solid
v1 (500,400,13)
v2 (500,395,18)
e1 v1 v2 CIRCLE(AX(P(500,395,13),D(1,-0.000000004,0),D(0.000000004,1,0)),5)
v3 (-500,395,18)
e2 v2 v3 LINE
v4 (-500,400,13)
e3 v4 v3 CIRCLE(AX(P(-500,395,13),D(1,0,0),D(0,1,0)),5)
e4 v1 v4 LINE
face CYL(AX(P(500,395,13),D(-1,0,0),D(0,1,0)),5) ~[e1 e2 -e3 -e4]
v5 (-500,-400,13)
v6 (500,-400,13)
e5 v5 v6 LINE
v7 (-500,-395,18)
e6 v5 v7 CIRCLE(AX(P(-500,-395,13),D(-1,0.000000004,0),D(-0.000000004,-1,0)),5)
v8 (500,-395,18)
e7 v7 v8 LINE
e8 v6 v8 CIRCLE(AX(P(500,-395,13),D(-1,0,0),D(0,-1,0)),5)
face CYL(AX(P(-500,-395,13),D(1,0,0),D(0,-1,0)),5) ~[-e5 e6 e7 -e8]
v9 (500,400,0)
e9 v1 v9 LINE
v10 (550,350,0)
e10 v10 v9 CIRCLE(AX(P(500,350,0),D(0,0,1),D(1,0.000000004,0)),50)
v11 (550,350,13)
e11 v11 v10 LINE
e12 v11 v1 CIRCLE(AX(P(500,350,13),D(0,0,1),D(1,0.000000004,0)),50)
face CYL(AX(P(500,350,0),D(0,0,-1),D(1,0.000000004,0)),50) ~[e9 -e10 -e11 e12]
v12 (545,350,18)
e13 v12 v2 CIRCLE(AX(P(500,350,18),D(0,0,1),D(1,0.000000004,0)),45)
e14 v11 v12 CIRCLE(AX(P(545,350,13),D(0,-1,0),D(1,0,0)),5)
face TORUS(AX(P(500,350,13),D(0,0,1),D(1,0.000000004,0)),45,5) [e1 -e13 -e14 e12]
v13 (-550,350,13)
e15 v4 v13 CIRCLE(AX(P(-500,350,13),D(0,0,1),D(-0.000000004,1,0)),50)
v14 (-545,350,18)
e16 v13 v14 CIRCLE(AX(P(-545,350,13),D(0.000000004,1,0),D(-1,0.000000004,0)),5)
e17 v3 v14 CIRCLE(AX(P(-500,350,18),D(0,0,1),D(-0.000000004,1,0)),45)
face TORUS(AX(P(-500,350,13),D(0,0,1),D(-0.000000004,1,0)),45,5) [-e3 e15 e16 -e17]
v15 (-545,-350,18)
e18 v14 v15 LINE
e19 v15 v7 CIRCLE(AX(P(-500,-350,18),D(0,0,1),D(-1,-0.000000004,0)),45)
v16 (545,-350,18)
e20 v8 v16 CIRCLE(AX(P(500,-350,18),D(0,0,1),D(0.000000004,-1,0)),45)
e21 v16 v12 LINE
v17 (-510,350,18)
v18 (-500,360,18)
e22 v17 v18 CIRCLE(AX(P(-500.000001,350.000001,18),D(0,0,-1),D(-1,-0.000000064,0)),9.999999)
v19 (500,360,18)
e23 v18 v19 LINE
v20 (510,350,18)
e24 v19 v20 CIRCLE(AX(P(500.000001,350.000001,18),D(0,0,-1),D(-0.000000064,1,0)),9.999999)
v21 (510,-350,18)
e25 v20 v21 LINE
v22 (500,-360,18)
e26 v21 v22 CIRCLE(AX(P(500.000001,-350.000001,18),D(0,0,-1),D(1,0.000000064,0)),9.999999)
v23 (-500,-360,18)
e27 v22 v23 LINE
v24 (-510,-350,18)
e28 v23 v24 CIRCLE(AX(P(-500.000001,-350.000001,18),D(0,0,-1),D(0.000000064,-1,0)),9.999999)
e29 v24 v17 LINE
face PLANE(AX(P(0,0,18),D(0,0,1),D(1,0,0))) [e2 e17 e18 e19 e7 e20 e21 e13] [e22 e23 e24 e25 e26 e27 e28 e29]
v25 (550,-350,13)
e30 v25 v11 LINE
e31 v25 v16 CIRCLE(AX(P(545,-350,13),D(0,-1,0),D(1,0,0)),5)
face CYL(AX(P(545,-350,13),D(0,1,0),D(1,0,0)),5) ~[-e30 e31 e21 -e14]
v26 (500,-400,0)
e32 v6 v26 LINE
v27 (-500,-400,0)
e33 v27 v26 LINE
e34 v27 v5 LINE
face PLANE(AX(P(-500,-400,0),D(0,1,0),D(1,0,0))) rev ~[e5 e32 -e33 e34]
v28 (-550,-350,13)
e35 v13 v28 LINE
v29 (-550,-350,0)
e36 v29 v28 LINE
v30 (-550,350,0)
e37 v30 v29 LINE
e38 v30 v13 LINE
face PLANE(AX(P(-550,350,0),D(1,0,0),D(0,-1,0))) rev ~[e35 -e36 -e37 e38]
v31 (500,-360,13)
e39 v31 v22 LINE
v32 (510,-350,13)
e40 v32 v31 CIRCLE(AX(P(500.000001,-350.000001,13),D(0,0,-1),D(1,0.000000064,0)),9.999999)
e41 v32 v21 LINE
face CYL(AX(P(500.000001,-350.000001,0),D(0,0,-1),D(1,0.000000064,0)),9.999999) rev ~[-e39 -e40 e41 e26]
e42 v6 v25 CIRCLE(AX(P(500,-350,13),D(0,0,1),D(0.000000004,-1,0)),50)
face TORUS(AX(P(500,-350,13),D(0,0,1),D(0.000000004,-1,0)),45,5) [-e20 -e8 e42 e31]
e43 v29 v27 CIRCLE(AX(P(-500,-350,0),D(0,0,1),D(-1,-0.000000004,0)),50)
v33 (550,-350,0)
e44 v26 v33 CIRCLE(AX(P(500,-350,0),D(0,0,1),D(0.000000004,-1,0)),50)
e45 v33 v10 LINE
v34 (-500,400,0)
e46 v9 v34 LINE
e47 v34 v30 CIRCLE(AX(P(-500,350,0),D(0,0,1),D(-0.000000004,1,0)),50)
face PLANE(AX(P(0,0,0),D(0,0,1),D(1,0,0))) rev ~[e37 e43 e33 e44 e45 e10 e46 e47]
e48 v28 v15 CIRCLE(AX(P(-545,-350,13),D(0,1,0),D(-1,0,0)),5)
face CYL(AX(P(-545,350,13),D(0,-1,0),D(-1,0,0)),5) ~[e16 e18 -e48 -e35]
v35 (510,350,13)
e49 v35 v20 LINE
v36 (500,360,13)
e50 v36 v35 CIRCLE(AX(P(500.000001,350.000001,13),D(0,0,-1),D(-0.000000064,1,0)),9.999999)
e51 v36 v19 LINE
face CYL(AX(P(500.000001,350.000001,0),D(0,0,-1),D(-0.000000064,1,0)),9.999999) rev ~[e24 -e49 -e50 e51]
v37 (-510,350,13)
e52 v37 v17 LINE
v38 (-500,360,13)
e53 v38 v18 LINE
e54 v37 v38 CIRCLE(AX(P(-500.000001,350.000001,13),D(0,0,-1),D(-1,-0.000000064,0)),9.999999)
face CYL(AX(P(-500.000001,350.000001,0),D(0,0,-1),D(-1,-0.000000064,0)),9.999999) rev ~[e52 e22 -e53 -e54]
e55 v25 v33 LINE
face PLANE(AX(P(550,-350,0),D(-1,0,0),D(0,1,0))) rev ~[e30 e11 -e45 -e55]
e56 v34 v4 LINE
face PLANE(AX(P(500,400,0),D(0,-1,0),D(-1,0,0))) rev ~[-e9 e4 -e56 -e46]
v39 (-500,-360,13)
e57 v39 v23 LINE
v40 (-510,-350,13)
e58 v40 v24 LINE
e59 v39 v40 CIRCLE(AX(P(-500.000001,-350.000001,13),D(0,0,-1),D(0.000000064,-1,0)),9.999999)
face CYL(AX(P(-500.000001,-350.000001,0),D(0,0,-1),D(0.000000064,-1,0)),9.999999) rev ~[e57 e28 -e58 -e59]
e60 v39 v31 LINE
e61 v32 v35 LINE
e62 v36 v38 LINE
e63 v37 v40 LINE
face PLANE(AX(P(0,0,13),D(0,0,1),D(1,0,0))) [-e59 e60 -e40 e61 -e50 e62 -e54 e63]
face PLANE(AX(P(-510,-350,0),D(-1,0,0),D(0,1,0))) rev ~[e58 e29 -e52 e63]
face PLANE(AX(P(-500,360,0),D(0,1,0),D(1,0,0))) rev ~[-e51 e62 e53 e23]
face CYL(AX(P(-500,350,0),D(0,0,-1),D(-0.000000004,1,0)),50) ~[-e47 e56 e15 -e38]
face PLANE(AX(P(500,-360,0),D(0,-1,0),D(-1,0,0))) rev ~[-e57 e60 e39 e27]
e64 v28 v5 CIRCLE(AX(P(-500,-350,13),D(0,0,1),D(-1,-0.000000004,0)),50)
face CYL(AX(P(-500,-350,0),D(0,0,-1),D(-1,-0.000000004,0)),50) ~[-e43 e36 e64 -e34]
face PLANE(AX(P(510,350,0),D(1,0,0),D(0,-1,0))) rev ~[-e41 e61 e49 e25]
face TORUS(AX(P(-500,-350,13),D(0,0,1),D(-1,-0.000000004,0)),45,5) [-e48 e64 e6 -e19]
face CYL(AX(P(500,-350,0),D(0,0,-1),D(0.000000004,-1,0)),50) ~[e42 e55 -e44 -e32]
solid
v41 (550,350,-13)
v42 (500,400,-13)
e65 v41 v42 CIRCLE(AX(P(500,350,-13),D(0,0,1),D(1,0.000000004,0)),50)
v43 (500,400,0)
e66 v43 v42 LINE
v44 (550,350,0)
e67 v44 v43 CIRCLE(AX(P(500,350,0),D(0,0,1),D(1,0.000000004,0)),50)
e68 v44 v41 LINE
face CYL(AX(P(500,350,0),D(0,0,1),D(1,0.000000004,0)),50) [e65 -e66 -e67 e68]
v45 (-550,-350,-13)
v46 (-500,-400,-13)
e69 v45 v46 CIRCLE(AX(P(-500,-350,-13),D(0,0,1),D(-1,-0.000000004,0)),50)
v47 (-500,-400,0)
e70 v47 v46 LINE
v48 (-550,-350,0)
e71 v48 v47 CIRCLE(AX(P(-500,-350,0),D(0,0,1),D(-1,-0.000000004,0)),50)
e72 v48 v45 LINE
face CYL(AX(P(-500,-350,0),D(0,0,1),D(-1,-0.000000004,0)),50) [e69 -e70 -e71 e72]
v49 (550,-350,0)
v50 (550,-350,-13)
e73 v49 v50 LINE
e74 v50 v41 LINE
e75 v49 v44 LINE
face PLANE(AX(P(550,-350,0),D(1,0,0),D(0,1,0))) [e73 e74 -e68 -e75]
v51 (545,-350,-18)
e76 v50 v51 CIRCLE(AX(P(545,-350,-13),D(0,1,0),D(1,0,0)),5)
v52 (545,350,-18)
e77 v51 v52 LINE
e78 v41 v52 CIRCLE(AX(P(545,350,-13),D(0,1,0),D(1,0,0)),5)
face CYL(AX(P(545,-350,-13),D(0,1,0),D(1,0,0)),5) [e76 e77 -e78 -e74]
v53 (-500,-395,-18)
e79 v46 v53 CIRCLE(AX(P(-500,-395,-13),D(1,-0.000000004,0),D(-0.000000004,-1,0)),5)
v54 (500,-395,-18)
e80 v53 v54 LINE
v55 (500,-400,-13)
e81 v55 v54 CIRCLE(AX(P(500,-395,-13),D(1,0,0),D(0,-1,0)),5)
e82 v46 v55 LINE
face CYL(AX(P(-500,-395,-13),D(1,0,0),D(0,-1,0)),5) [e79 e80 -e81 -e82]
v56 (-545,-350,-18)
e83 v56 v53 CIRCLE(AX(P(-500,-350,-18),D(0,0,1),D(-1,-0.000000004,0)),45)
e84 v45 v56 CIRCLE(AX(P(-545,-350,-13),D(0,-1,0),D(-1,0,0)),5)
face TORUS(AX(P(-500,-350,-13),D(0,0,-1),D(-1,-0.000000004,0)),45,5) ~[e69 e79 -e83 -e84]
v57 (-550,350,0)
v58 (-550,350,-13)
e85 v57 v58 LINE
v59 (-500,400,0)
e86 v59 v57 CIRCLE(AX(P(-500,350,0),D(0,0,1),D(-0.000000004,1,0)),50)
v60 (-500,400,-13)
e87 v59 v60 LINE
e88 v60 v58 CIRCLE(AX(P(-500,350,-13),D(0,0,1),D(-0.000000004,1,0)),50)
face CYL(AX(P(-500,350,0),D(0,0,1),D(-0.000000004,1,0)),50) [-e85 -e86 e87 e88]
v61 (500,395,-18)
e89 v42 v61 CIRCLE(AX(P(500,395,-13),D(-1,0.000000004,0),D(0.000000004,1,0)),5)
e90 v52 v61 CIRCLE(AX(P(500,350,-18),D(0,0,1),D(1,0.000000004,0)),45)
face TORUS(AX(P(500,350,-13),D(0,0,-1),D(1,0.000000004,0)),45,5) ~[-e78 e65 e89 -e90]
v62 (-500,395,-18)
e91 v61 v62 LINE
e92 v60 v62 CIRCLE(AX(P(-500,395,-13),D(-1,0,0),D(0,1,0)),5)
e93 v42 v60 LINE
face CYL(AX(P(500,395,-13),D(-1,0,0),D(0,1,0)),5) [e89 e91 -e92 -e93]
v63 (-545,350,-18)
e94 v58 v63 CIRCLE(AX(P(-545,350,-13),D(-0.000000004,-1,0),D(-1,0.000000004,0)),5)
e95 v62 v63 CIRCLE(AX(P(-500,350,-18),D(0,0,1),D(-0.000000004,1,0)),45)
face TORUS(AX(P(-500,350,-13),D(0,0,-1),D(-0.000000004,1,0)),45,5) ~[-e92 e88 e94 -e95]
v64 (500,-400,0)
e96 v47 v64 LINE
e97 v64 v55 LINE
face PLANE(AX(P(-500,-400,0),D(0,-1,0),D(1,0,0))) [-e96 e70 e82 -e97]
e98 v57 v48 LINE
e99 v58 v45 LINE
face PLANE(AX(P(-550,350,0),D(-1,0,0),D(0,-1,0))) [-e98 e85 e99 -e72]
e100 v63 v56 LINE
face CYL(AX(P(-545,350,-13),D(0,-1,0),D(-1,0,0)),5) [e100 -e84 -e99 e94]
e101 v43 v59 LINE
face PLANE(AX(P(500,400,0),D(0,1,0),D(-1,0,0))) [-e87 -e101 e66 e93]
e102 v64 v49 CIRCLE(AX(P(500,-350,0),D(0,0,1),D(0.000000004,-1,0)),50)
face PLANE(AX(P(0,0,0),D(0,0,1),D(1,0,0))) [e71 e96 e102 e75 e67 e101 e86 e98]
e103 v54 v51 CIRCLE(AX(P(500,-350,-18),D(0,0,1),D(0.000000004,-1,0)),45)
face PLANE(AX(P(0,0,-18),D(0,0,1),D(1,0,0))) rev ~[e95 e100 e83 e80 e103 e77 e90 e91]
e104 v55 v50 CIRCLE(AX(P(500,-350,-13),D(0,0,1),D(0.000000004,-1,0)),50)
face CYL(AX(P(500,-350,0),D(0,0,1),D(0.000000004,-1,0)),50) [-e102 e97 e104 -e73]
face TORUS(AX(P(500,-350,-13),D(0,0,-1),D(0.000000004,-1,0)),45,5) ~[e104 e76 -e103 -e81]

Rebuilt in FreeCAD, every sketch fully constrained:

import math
import FreeCAD as App
import Part
import Sketcher

V = App.Vector


def edges_at(feature, points):
    """Names of the edges that pass closest to the given points."""
    edges = feature.Shape.Edges
    near = lambda p: min(range(len(edges)), key=lambda i: edges[i].distToShape(Part.Vertex(*p))[0])
    return sorted({f"Edge{near(p) + 1}" for p in points})

doc = App.newDocument("Part")
body = doc.addObject("PartDesign::Body", "Body")

sketch1 = body.newObject("Sketcher::SketchObject", "Sketch")
sketch1.AttachmentSupport = (doc.getObject("XY_Plane"), [""])
sketch1.MapMode = "FlatFace"
sketch1.addGeometry([
    Part.LineSegment(V(500, 400, 0), V(-500, 400, 0)),
    Part.ArcOfCircle(Part.Circle(V(-500, 350, 0), V(0, 0, 1), 50), math.radians(90), math.radians(180)),
    Part.LineSegment(V(-550, 350, 0), V(-550, -350, 0)),
    Part.ArcOfCircle(Part.Circle(V(-500, -350, 0), V(0, 0, 1), 50), math.radians(-180), math.radians(-90)),
    Part.LineSegment(V(-500, -400, 0), V(500, -400, 0)),
    Part.ArcOfCircle(Part.Circle(V(500, -350, 0), V(0, 0, 1), 50), math.radians(-90), math.radians(0)),
    Part.LineSegment(V(550, -350, 0), V(550, 350, 0)),
    Part.ArcOfCircle(Part.Circle(V(500, 350, 0), V(0, 0, 1), 50), math.radians(0), math.radians(90)),
], False)
sketch1.addConstraint([
    Sketcher.Constraint("Tangent", 0, 2, 1, 1),
    Sketcher.Constraint("Tangent", 1, 2, 2, 1),
    Sketcher.Constraint("Tangent", 2, 2, 3, 1),
    Sketcher.Constraint("Tangent", 3, 2, 4, 1),
    Sketcher.Constraint("Tangent", 4, 2, 5, 1),
    Sketcher.Constraint("Tangent", 5, 2, 6, 1),
    Sketcher.Constraint("Tangent", 6, 2, 7, 1),
    Sketcher.Constraint("Tangent", 7, 2, 0, 1),
    Sketcher.Constraint("Horizontal", 0),
    Sketcher.Constraint("Vertical", 2),
    Sketcher.Constraint("Horizontal", 4),
    Sketcher.Constraint("Vertical", 6),
    Sketcher.Constraint("Equal", 1, 3),
    Sketcher.Constraint("Equal", 3, 5),
    Sketcher.Constraint("Equal", 5, 7),
    Sketcher.Constraint("Symmetric", 1, 3, 5, 3, -1, 1),
    Sketcher.Constraint("Radius", 1, 50.0),
    Sketcher.Constraint("DistanceX", 0, 2, 0, 1, 1000.0),
    Sketcher.Constraint("DistanceY", 2, 2, 2, 1, 700.0),
])
pad1 = body.newObject("PartDesign::Pad", "Pad")
pad1.Profile = sketch1
pad1.Length = 13

sketch2 = body.newObject("Sketcher::SketchObject", "Sketch001")
sketch2.AttachmentSupport = (doc.getObject("XY_Plane"), [""])
sketch2.MapMode = "FlatFace"
sketch2.addGeometry([
    Part.LineSegment(V(500, 400, 0), V(-500, 400, 0)),
    Part.ArcOfCircle(Part.Circle(V(-500, 350, 0), V(0, 0, 1), 50), math.radians(90), math.radians(180)),
    Part.LineSegment(V(-550, 350, 0), V(-550, -350, 0)),
    Part.ArcOfCircle(Part.Circle(V(-500, -350, 0), V(0, 0, 1), 50), math.radians(-180), math.radians(-90)),
    Part.LineSegment(V(-500, -400, 0), V(500, -400, 0)),
    Part.ArcOfCircle(Part.Circle(V(500, -350, 0), V(0, 0, 1), 50), math.radians(-90), math.radians(0)),
    Part.LineSegment(V(550, -350, 0), V(550, 350, 0)),
    Part.ArcOfCircle(Part.Circle(V(500, 350, 0), V(0, 0, 1), 50), math.radians(0), math.radians(90)),
    Part.LineSegment(V(-510, -350, 0), V(-510, 350, 0)),
    Part.ArcOfCircle(Part.Circle(V(-500.000001, 350.000001, 0), V(0, 0, 1), 9.999999), math.radians(89.999996), math.radians(180.000004)),
    Part.LineSegment(V(-500, 360, 0), V(500, 360, 0)),
    Part.ArcOfCircle(Part.Circle(V(500.000001, 350.000001, 0), V(0, 0, 1), 9.999999), math.radians(-0.000004), math.radians(90.000004)),
    Part.LineSegment(V(510, 350, 0), V(510, -350, 0)),
    Part.ArcOfCircle(Part.Circle(V(500.000001, -350.000001, 0), V(0, 0, 1), 9.999999), math.radians(-90.000004), math.radians(0.000004)),
    Part.LineSegment(V(500, -360, 0), V(-500, -360, 0)),
    Part.ArcOfCircle(Part.Circle(V(-500.000001, -350.000001, 0), V(0, 0, 1), 9.999999), math.radians(179.999996), math.radians(270.000004)),
], False)
sketch2.addConstraint([
    Sketcher.Constraint("Tangent", 0, 2, 1, 1),
    Sketcher.Constraint("Tangent", 1, 2, 2, 1),
    Sketcher.Constraint("Tangent", 2, 2, 3, 1),
    Sketcher.Constraint("Tangent", 3, 2, 4, 1),
    Sketcher.Constraint("Tangent", 4, 2, 5, 1),
    Sketcher.Constraint("Tangent", 5, 2, 6, 1),
    Sketcher.Constraint("Tangent", 6, 2, 7, 1),
    Sketcher.Constraint("Tangent", 7, 2, 0, 1),
    Sketcher.Constraint("Tangent", 8, 2, 9, 2),
    Sketcher.Constraint("Tangent", 9, 1, 10, 1),
    Sketcher.Constraint("Tangent", 10, 2, 11, 2),
    Sketcher.Constraint("Tangent", 11, 1, 12, 1),
    Sketcher.Constraint("Tangent", 12, 2, 13, 2),
    Sketcher.Constraint("Tangent", 13, 1, 14, 1),
    Sketcher.Constraint("Tangent", 14, 2, 15, 2),
    Sketcher.Constraint("Tangent", 15, 1, 8, 1),
    Sketcher.Constraint("Horizontal", 0),
    Sketcher.Constraint("Vertical", 2),
    Sketcher.Constraint("Horizontal", 4),
    Sketcher.Constraint("Vertical", 6),
    Sketcher.Constraint("Vertical", 8),
    Sketcher.Constraint("Horizontal", 10),
    Sketcher.Constraint("Vertical", 12),
    Sketcher.Constraint("Horizontal", 14),
    Sketcher.Constraint("Coincident", 9, 3, 1, 3),
    Sketcher.Constraint("Coincident", 11, 3, 7, 3),
    Sketcher.Constraint("Coincident", 13, 3, 5, 3),
    Sketcher.Constraint("Equal", 1, 3),
    Sketcher.Constraint("Equal", 3, 5),
    Sketcher.Constraint("Equal", 5, 7),
    Sketcher.Constraint("Equal", 13, 15),
    Sketcher.Constraint("Symmetric", 1, 3, 5, 3, -1, 1),
    Sketcher.Constraint("Radius", 1, 50.0),
    Sketcher.Constraint("Radius", 9, 9.999999),
    Sketcher.Constraint("DistanceX", 0, 2, 0, 1, 1000.0),
    Sketcher.Constraint("DistanceY", 2, 2, 2, 1, 700.0),
])
pad2 = body.newObject("PartDesign::Pad", "Pad001")
pad2.Profile = sketch2
pad2.Length = 18
doc.recompute()

fillet = body.newObject("PartDesign::Fillet", "Fillet")
fillet.Base = (pad2, edges_at(pad2, [(550, 0, 18)]))
fillet.Radius = 5
body2 = doc.addObject("PartDesign::Body", "Body001")

sketch3 = body2.newObject("Sketcher::SketchObject", "Sketch002")
sketch3.AttachmentSupport = (doc.getObject("XY_Plane001"), [""])
sketch3.MapMode = "FlatFace"
sketch3.addGeometry([
    Part.LineSegment(V(500, 400, 0), V(-500, 400, 0)),
    Part.ArcOfCircle(Part.Circle(V(-500, 350, 0), V(0, 0, 1), 50), math.radians(90), math.radians(180)),
    Part.LineSegment(V(-550, 350, 0), V(-550, -350, 0)),
    Part.ArcOfCircle(Part.Circle(V(-500, -350, 0), V(0, 0, 1), 50), math.radians(-180), math.radians(-90)),
    Part.LineSegment(V(-500, -400, 0), V(500, -400, 0)),
    Part.ArcOfCircle(Part.Circle(V(500, -350, 0), V(0, 0, 1), 50), math.radians(-90), math.radians(0)),
    Part.LineSegment(V(550, -350, 0), V(550, 350, 0)),
    Part.ArcOfCircle(Part.Circle(V(500, 350, 0), V(0, 0, 1), 50), math.radians(0), math.radians(90)),
], False)
sketch3.addConstraint([
    Sketcher.Constraint("Tangent", 0, 2, 1, 1),
    Sketcher.Constraint("Tangent", 1, 2, 2, 1),
    Sketcher.Constraint("Tangent", 2, 2, 3, 1),
    Sketcher.Constraint("Tangent", 3, 2, 4, 1),
    Sketcher.Constraint("Tangent", 4, 2, 5, 1),
    Sketcher.Constraint("Tangent", 5, 2, 6, 1),
    Sketcher.Constraint("Tangent", 6, 2, 7, 1),
    Sketcher.Constraint("Tangent", 7, 2, 0, 1),
    Sketcher.Constraint("Horizontal", 0),
    Sketcher.Constraint("Vertical", 2),
    Sketcher.Constraint("Horizontal", 4),
    Sketcher.Constraint("Vertical", 6),
    Sketcher.Constraint("Equal", 1, 3),
    Sketcher.Constraint("Equal", 3, 5),
    Sketcher.Constraint("Equal", 5, 7),
    Sketcher.Constraint("Symmetric", 1, 3, 5, 3, -1, 1),
    Sketcher.Constraint("Radius", 1, 50.0),
    Sketcher.Constraint("DistanceX", 0, 2, 0, 1, 1000.0),
    Sketcher.Constraint("DistanceY", 2, 2, 2, 1, 700.0),
])
pad3 = body2.newObject("PartDesign::Pad", "Pad002")
pad3.Profile = sketch3
pad3.Length = 18
pad3.Reversed = True
doc.recompute()

fillet2 = body2.newObject("PartDesign::Fillet", "Fillet001")
fillet2.Base = (pad3, edges_at(pad3, [(550, 0, -18)]))
fillet2.Radius = 5

doc.recompute()
